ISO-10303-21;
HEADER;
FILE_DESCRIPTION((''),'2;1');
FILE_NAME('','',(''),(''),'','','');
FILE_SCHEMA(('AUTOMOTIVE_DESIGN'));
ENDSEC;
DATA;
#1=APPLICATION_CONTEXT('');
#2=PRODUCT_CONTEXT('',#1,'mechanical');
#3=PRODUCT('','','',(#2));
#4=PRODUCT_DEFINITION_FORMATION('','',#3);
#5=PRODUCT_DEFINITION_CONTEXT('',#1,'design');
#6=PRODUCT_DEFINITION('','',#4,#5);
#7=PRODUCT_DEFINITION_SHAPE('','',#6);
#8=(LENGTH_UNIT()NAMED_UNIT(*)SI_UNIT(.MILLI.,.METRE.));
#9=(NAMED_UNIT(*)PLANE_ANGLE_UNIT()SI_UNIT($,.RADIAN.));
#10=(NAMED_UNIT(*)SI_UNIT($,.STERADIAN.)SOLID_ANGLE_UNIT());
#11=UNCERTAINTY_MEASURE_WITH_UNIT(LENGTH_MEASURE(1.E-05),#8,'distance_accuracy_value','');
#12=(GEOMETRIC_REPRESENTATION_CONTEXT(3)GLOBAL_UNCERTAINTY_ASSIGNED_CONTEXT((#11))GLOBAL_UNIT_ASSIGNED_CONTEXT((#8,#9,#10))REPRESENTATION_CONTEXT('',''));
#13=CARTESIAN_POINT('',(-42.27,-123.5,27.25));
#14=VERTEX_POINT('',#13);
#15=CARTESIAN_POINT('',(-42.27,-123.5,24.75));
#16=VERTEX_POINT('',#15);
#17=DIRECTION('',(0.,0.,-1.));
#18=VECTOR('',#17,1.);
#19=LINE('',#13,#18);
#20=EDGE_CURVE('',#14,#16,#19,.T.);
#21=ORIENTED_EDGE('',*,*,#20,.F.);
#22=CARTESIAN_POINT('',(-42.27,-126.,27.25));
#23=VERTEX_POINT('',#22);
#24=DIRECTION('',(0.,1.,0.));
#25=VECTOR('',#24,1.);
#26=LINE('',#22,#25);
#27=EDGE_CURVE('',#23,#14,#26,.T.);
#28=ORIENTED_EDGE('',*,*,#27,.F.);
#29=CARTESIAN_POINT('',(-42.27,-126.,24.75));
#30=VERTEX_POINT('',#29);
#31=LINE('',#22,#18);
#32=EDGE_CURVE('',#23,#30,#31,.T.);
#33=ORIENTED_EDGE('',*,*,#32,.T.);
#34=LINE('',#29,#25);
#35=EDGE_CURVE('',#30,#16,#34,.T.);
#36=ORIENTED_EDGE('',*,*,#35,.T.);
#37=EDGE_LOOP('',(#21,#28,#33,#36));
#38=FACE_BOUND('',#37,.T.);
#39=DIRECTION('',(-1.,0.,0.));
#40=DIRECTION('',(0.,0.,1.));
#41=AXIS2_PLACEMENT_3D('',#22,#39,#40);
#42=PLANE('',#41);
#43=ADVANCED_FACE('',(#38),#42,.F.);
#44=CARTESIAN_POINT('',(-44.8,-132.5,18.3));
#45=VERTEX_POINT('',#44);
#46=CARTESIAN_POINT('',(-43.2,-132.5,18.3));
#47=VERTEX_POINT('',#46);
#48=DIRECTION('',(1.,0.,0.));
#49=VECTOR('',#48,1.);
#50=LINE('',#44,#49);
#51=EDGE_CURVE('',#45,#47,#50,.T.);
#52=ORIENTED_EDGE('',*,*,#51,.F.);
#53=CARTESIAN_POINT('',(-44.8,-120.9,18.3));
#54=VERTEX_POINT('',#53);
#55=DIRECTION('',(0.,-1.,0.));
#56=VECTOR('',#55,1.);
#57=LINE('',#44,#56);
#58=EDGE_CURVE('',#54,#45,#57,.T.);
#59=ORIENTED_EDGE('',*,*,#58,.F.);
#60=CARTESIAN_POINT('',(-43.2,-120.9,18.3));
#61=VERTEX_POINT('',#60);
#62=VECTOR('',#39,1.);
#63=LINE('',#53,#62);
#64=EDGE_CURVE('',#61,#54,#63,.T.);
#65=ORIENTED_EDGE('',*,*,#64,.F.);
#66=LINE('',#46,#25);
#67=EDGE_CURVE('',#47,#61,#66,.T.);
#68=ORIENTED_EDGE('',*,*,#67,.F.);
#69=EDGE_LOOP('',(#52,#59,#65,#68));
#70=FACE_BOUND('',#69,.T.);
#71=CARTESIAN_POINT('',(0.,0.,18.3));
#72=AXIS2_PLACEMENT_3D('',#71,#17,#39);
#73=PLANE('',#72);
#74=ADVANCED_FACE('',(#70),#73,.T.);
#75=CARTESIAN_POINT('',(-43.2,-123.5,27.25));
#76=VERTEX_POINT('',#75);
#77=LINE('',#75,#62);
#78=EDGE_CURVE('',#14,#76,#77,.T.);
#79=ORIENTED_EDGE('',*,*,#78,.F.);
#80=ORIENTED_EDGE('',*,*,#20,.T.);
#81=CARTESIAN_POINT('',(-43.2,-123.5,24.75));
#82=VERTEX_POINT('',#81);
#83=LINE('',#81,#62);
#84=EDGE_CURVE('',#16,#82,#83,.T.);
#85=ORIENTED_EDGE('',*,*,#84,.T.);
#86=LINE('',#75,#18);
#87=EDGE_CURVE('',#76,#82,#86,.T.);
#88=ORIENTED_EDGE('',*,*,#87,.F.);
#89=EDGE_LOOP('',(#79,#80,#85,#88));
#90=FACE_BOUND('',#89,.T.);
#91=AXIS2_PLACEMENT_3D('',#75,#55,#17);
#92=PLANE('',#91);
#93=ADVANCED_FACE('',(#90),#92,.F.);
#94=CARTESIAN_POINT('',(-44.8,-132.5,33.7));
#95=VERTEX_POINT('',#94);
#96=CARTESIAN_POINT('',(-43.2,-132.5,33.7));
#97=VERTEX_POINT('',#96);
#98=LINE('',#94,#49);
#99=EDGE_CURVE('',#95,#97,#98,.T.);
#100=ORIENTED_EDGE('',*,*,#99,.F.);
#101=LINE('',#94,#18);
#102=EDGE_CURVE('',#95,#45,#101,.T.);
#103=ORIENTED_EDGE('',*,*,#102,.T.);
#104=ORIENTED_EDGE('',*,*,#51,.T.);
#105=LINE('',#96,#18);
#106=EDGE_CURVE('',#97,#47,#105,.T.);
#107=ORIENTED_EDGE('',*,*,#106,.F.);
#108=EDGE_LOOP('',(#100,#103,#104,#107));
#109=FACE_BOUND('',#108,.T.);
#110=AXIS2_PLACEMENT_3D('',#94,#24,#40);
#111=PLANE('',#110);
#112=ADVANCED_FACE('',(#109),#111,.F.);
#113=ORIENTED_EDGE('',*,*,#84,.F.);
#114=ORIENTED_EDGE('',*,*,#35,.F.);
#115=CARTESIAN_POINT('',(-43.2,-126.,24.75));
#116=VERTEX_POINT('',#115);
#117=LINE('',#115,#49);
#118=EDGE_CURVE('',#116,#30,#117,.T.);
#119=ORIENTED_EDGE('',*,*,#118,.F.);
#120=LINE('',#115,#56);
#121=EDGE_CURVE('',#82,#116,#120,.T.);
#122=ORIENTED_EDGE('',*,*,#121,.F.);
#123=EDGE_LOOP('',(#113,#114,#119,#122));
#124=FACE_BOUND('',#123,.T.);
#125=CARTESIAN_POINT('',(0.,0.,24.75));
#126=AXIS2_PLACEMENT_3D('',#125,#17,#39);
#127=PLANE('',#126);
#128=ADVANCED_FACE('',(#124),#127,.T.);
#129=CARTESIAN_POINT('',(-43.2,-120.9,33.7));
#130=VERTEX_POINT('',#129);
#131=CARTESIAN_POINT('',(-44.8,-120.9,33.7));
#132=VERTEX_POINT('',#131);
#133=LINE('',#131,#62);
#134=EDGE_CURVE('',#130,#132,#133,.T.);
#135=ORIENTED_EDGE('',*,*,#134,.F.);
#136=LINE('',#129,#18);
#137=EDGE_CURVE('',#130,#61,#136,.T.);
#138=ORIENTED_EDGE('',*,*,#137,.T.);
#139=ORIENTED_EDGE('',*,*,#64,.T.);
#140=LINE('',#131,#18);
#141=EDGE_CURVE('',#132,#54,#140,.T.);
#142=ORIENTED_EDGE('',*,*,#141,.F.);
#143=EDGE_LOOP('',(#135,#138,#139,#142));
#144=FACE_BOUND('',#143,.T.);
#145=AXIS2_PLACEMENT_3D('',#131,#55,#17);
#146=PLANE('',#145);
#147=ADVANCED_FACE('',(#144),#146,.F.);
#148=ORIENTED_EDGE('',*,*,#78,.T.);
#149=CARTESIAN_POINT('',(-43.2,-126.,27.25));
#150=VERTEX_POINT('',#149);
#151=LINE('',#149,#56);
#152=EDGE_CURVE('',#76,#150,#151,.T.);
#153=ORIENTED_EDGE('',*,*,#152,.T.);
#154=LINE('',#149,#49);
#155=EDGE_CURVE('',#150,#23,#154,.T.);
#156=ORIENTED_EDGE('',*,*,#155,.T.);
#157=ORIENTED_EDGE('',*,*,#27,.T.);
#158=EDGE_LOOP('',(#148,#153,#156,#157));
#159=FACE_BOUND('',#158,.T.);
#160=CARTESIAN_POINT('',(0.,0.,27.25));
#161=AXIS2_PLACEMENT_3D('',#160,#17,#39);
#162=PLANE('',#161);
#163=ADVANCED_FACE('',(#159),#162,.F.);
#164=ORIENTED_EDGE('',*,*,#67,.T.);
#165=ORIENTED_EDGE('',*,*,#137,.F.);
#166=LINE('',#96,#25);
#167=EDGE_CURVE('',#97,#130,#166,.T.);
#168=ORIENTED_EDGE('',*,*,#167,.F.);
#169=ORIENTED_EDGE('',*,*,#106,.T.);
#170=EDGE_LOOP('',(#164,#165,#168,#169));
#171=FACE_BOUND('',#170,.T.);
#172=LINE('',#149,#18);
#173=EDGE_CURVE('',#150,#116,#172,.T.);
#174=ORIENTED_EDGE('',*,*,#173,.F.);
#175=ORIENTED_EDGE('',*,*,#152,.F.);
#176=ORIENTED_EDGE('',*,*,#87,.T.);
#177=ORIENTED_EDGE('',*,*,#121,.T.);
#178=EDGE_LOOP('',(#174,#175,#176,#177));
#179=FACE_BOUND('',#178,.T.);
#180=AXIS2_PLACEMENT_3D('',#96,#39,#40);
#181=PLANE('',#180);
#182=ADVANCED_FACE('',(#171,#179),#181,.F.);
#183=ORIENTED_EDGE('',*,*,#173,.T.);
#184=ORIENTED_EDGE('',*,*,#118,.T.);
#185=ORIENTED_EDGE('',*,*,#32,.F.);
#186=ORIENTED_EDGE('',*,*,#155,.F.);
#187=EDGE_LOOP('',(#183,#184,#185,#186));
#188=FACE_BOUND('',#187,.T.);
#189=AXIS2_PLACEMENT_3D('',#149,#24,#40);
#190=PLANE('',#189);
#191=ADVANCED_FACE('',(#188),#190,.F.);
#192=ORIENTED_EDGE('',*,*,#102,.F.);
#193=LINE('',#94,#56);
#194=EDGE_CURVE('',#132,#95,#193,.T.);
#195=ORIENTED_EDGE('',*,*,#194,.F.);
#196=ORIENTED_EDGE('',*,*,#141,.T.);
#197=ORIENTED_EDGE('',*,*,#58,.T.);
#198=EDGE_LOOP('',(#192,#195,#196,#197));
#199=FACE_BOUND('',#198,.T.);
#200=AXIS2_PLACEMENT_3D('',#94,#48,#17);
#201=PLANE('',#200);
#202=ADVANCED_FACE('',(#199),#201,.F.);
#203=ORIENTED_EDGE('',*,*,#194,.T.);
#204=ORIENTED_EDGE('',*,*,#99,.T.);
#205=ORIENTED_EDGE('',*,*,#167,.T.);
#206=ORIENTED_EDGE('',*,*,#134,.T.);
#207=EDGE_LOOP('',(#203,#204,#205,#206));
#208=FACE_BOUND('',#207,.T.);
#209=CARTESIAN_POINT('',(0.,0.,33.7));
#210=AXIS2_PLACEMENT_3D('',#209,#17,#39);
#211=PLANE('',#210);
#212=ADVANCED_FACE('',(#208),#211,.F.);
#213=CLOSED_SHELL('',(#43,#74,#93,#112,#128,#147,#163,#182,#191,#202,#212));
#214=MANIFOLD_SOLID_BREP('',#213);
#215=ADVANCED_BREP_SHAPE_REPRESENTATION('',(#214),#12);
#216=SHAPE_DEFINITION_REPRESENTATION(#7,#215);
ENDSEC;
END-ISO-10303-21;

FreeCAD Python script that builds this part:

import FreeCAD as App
import Part
import Sketcher
Q = App.Units.Quantity

doc = App.newDocument("Part")
body = doc.addObject("PartDesign::Body", "Body")

sketch1 = body.newObject("Sketcher::SketchObject", "Sketch")
sketch1.AttachmentSupport = (doc.getObject("XY_Plane"), [""])
sketch1.MapMode = "FlatFace"
sketch1.AttachmentOffset = App.Placement(App.Vector(0, 0, 18.3), App.Rotation())
sketch1.addGeometry([
    Part.LineSegment(App.Vector(-44.8, -120.9, 0), App.Vector(-44.8, -132.5, 0)),
    Part.LineSegment(App.Vector(-44.8, -132.5, 0), App.Vector(-43.2, -132.5, 0)),
    Part.LineSegment(App.Vector(-43.2, -132.5, 0), App.Vector(-43.2, -120.9, 0)),
    Part.LineSegment(App.Vector(-43.2, -120.9, 0), App.Vector(-44.8, -120.9, 0)),
], False)
sketch1.addConstraint([
    Sketcher.Constraint("Coincident", 0, 2, 1, 1),
    Sketcher.Constraint("Coincident", 1, 2, 2, 1),
    Sketcher.Constraint("Coincident", 2, 2, 3, 1),
    Sketcher.Constraint("Coincident", 3, 2, 0, 1),
    Sketcher.Constraint("Vertical", 0),
    Sketcher.Constraint("Horizontal", 1),
    Sketcher.Constraint("Vertical", 2),
    Sketcher.Constraint("Horizontal", 3),
    Sketcher.Constraint("DistanceX", 1, 1, 1, 2, Q("1.6 mm")),
    Sketcher.Constraint("DistanceY", 0, 2, 0, 1, Q("11.6 mm")),
    Sketcher.Constraint("DistanceX", 0, 2, -1, 1, Q("44.8 mm")),
    Sketcher.Constraint("DistanceY", 0, 2, -1, 1, Q("132.5 mm")),
])
pad1 = body.newObject("PartDesign::Pad", "Pad")
pad1.Profile = sketch1
pad1.Length = 15.4

sketch2 = body.newObject("Sketcher::SketchObject", "Sketch001")
sketch2.AttachmentSupport = (doc.getObject("XY_Plane"), [""])
sketch2.MapMode = "FlatFace"
sketch2.AttachmentOffset = App.Placement(App.Vector(0, 0, 24.75), App.Rotation())
sketch2.addGeometry([
    Part.LineSegment(App.Vector(-43.2, -123.5, 0), App.Vector(-43.2, -126, 0)),
    Part.LineSegment(App.Vector(-43.2, -126, 0), App.Vector(-42.3, -126, 0)),
    Part.LineSegment(App.Vector(-42.3, -126, 0), App.Vector(-42.3, -123.5, 0)),
    Part.LineSegment(App.Vector(-42.3, -123.5, 0), App.Vector(-43.2, -123.5, 0)),
], False)
sketch2.addConstraint([
    Sketcher.Constraint("Coincident", 0, 2, 1, 1),
    Sketcher.Constraint("Coincident", 1, 2, 2, 1),
    Sketcher.Constraint("Coincident", 2, 2, 3, 1),
    Sketcher.Constraint("Coincident", 3, 2, 0, 1),
    Sketcher.Constraint("Vertical", 0),
    Sketcher.Constraint("Horizontal", 1),
    Sketcher.Constraint("Vertical", 2),
    Sketcher.Constraint("Horizontal", 3),
    Sketcher.Constraint("DistanceY", 0, 2, 0, 1, Q("2.5 mm")),
    Sketcher.Constraint("DistanceY", 0, 2, -1, 1, Q("126 mm")),
    Sketcher.Constraint("DistanceX", 1, 1, 1, 2, Q("0.93 mm")),
    Sketcher.Constraint("DistanceX", 0, 2, -1, 1, Q("43.2 mm")),
])
pad2 = body.newObject("PartDesign::Pad", "Pad001")
pad2.Profile = sketch2
pad2.Length = 2.5

doc.recompute()
